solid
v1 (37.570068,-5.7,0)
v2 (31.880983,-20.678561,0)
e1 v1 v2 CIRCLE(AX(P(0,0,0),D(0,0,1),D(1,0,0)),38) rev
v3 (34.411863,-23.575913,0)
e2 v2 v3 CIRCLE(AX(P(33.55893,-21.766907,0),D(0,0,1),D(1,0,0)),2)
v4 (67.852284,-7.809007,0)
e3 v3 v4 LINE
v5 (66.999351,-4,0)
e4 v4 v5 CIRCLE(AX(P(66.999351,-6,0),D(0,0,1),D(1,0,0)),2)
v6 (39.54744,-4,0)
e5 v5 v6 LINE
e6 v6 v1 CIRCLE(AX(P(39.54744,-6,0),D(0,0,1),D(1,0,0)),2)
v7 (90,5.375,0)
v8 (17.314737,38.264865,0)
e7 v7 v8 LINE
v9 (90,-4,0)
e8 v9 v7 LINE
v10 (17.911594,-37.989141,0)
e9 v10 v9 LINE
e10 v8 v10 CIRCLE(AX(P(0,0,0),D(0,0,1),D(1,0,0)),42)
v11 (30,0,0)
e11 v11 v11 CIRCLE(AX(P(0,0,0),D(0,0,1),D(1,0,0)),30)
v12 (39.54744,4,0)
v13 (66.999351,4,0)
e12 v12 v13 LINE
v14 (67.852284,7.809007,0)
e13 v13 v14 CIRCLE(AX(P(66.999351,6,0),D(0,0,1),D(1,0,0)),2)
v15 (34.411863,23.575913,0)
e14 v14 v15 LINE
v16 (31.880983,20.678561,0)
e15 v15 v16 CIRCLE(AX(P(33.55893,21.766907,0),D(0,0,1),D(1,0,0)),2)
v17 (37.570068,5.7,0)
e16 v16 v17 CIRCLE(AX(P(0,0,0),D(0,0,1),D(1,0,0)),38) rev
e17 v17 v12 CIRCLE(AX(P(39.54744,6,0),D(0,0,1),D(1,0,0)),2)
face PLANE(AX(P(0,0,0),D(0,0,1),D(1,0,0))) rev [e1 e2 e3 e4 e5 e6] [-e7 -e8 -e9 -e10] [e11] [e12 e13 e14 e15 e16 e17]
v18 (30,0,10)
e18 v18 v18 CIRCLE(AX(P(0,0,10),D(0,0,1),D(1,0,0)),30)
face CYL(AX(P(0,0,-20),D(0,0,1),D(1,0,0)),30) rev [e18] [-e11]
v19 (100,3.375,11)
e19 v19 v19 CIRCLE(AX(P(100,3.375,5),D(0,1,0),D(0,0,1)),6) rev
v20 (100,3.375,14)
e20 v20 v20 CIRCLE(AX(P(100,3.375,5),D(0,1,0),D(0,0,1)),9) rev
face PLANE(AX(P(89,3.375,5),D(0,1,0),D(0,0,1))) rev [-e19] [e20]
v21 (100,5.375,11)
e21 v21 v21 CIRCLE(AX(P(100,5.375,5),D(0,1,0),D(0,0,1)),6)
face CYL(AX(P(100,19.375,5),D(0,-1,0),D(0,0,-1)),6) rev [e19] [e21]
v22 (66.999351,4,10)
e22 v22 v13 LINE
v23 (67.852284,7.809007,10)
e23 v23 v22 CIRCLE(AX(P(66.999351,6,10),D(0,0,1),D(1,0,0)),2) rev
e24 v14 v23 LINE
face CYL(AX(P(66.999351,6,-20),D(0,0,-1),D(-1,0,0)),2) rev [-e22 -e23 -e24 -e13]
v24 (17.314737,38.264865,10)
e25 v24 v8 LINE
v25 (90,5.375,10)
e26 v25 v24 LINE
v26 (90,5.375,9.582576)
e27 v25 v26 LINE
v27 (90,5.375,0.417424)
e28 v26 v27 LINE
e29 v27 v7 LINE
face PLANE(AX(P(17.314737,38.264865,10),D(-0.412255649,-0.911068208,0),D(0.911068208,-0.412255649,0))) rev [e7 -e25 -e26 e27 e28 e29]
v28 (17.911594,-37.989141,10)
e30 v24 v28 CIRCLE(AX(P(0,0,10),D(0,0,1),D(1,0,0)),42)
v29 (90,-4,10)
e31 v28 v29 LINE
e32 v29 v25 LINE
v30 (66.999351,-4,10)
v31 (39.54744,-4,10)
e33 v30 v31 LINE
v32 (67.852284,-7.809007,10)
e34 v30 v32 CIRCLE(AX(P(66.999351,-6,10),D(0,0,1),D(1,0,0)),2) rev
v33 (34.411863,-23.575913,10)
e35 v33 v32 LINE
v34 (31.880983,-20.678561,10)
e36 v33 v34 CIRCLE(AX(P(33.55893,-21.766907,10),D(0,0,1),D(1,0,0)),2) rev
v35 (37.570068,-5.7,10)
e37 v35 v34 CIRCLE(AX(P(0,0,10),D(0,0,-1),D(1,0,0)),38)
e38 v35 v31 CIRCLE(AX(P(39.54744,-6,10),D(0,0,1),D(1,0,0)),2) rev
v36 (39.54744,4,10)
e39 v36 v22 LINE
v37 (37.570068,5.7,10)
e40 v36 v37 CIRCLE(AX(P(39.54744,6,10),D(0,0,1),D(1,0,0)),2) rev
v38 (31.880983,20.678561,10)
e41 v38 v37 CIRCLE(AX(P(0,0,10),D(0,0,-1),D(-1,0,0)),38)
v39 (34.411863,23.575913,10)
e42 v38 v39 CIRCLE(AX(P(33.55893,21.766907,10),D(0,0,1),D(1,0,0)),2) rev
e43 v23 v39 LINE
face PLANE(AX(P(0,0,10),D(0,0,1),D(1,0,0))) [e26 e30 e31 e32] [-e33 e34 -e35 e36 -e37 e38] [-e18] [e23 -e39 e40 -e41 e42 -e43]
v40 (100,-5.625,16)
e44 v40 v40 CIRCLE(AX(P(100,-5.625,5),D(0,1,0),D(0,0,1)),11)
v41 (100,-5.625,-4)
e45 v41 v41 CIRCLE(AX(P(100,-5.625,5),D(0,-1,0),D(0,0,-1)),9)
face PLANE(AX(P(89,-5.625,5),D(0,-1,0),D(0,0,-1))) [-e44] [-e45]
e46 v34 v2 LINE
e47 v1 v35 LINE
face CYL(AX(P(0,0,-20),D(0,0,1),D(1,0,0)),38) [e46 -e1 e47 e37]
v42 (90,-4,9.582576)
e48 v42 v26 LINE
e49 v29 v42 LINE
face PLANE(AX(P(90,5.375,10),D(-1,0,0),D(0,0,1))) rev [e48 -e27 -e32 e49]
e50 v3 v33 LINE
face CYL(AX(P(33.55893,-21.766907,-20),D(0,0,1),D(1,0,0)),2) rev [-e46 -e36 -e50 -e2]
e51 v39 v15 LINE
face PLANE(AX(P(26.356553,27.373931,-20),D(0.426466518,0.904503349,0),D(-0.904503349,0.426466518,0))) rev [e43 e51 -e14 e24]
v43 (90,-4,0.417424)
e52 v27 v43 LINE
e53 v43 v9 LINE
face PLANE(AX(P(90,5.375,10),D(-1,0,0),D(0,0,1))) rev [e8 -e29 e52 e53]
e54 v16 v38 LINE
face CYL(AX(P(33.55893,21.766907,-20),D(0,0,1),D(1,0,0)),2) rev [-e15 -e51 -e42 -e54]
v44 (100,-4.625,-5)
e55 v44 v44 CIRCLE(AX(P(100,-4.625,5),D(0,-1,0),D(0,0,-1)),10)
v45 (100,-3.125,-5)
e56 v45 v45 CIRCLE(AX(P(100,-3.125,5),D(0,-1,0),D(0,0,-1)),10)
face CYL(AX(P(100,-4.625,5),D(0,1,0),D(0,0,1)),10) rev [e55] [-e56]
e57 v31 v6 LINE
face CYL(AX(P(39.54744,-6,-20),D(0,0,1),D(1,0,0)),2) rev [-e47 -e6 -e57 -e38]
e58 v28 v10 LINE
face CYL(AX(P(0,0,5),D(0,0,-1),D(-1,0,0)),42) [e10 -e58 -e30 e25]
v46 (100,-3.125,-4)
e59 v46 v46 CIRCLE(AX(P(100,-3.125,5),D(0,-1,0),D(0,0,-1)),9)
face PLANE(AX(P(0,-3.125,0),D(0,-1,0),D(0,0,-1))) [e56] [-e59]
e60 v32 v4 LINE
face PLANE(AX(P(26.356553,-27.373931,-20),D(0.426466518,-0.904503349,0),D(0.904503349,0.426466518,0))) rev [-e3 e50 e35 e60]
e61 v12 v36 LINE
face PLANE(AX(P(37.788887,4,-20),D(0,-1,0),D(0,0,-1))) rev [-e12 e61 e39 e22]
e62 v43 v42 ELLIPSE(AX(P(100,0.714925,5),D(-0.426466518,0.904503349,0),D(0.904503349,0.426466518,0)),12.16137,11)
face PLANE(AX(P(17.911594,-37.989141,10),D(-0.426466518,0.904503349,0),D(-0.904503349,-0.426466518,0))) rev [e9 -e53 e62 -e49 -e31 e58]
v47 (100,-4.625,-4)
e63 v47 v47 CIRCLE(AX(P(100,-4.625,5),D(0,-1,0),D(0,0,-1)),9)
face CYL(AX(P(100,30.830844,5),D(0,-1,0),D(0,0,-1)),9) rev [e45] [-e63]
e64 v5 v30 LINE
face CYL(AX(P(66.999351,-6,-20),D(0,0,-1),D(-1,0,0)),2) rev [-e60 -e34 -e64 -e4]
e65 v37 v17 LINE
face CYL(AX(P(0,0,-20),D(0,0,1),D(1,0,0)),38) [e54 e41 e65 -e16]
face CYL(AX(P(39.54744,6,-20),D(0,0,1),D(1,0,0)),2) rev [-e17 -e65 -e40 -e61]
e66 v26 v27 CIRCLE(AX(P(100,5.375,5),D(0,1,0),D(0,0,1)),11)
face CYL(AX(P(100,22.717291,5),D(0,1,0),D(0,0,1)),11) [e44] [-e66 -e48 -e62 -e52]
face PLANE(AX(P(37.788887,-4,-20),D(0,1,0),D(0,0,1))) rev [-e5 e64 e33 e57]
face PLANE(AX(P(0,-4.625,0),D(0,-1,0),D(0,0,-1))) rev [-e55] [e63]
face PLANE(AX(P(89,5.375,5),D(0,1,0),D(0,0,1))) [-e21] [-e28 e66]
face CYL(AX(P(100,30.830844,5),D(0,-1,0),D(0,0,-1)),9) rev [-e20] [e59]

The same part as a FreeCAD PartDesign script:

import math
import FreeCAD as App
import Part
import Sketcher
from FreeCAD import Vector


def edges_at(feature, points):
    """Names of the edges that pass closest to the given points."""
    edges = feature.Shape.Edges
    near = lambda p: min(range(len(edges)), key=lambda i: edges[i].distToShape(Part.Vertex(*p))[0])
    return sorted({f"Edge{near(p) + 1}" for p in points})

doc = App.newDocument("Part")
params = doc.addObject("Spreadsheet::Sheet", "Params")
for row, (alias, value) in enumerate([
    ("sketch1_diameter", "84 mm"),
    ("pad1_length", "5 mm"),
    ("sketch2_width", "11 mm"),
    ("revolution_angle", "360 deg"),
    ("sketch3_radius", "42 mm"),
    ("pad2_length", "10 mm"),
    ("sketch4_diameter", "12 mm"),
    ("pocket1_length", "25 mm"),
    ("sketch5_diameter", "18 mm"),
    ("pocket2_length", "9 mm"),
    ("sketch6_diameter", "20 mm"),
    ("pocket3_length", "1.5 mm"),
    ("sketch7_diameter", "60 mm"),
    ("sketch7_radius", "38 mm"),
    ("pocket4_length", "30 mm"),
    ("fillet_radius", "2 mm"),
], start=1):
    params.set(f"A{row}", alias)
    params.set(f"B{row}", "=" + value)
    params.setAlias(f"B{row}", alias)

body = doc.addObject("PartDesign::Body", "Body")

sketch1 = body.newObject("Sketcher::SketchObject", "Sketch")
sketch1.AttachmentSupport = (doc.getObject("XY_Plane"), [""])
sketch1.MapMode = "FlatFace"
sketch1.addGeometry(Part.Circle(Vector(0, 0, 0), Vector(0, 0, 1), 42), False)
sketch1.addConstraint([
    Sketcher.Constraint("Coincident", 0, 3, -1, 1),
    Sketcher.Constraint("Diameter", 0, 84.0),
])
sketch1.setExpression("Constraints[1]", "Params.sketch1_diameter")
pad1 = body.newObject("PartDesign::Pad", "Pad")
pad1.Profile = sketch1
pad1.setExpression("Length", "Params.pad1_length")
body2 = doc.addObject("PartDesign::Body", "Body001")

sketch2 = body2.newObject("Sketcher::SketchObject", "Sketch001")
sketch2.AttachmentSupport = (doc.getObject("XY_Plane001"), [""])
sketch2.MapMode = "FlatFace"
sketch2.AttachmentOffset = App.Placement(Vector(0, 0, 5), App.Rotation())
sketch2.addGeometry([
    Part.LineSegment(Vector(89, 5, 0), Vector(89, -6, 0)),
    Part.LineSegment(Vector(89, -6, 0), Vector(100, -6, 0)),
    Part.LineSegment(Vector(100, -6, 0), Vector(100, 5, 0)),
    Part.LineSegment(Vector(100, 5, 0), Vector(89, 5, 0)),
], False)
sketch2.addGeometry(Part.LineSegment(Vector(100, 5, 0), Vector(100, -6, 0)), True)
sketch2.addConstraint([
    Sketcher.Constraint("Coincident", 0, 2, 1, 1),
    Sketcher.Constraint("Coincident", 1, 2, 2, 1),
    Sketcher.Constraint("Coincident", 2, 2, 3, 1),
    Sketcher.Constraint("Coincident", 3, 2, 0, 1),
    Sketcher.Constraint("Vertical", 0),
    Sketcher.Constraint("Horizontal", 1),
    Sketcher.Constraint("Vertical", 2),
    Sketcher.Constraint("Horizontal", 3),
    Sketcher.Constraint("Vertical", 4),
    Sketcher.Constraint("Coincident", 4, 1, 2, 2),
    Sketcher.Constraint("Horizontal", 0, 2, 4, 2),
    Sketcher.Constraint("Equal", 3, 0),
    Sketcher.Constraint("DistanceX", 1, 1, 1, 2, 11.0),
    Sketcher.Constraint("DistanceX", -1, 1, 0, 2, 89.0),
    Sketcher.Constraint("DistanceY", 0, 2, -1, 1, 5.625),
])
sketch2.setExpression("Constraints[12]", "Params.sketch2_width")
revolution = body2.newObject("PartDesign::Revolution", "Revolution")
revolution.Profile = sketch2
revolution.ReferenceAxis = (sketch2, ["Axis0"])
revolution.setExpression("Angle", "Params.revolution_angle")
body.AllowCompound = True
doc.recompute()

boolean = body.newObject("PartDesign::Boolean", "Boolean")
boolean.Type = "Fuse"
boolean.addObjects([body2])

sketch3 = body.newObject("Sketcher::SketchObject", "Sketch002")
sketch3.AttachmentSupport = (doc.getObject("XY_Plane"), [""])
sketch3.MapMode = "FlatFace"
sketch3.AttachmentOffset = App.Placement(Vector(0, 0, 5), App.Rotation())
sketch3.addGeometry([
    Part.LineSegment(Vector(90, 5, 0), Vector(17, 38, 0)),
    Part.ArcOfCircle(Part.Circle(Vector(0, 0, 0), Vector(0, 0, 1), 42), math.radians(66), math.radians(295)),
    Part.LineSegment(Vector(18, -38, 0), Vector(90, -4, 0)),
    Part.LineSegment(Vector(90, -4, 0), Vector(90, 5, 0)),
], False)
sketch3.addConstraint([
    Sketcher.Constraint("Tangent", 0, 2, 1, 1),
    Sketcher.Constraint("Tangent", 1, 2, 2, 1),
    Sketcher.Constraint("Coincident", 2, 2, 3, 1),
    Sketcher.Constraint("Coincident", 3, 2, 0, 1),
    Sketcher.Constraint("Vertical", 3),
    Sketcher.Constraint("Coincident", 1, 3, -1, 1),
    Sketcher.Constraint("Radius", 1, 42.0),
    Sketcher.Constraint("DistanceX", -1, 1, 2, 2, 90.0),
    Sketcher.Constraint("DistanceY", 2, 2, -1, 1, 4.0),
    Sketcher.Constraint("DistanceY", 3, 1, 3, 2, 9.375),
])
sketch3.setExpression("Constraints[6]", "Params.sketch3_radius")
pad2 = body.newObject("PartDesign::Pad", "Pad001")
pad2.Profile = sketch3
pad2.setExpression("Length", "Params.pad2_length")
pad2.Midplane = True

sketch4 = body.newObject("Sketcher::SketchObject", "Sketch003")
sketch4.AttachmentSupport = (doc.getObject("XZ_Plane"), [""])
sketch4.MapMode = "FlatFace"
sketch4.AttachmentOffset = App.Placement(Vector(0, 0, 5.625), App.Rotation())
sketch4.addGeometry(Part.Circle(Vector(100, 5, 0), Vector(0, 0, 1), 6), False)
sketch4.addConstraint([
    Sketcher.Constraint("Diameter", 0, 12.0),
    Sketcher.Constraint("DistanceX", -1, 1, 0, 3, 100.0),
    Sketcher.Constraint("DistanceY", -1, 1, 0, 3, 5.0),
])
sketch4.setExpression("Constraints[0]", "Params.sketch4_diameter")
pocket1 = body.newObject("PartDesign::Pocket", "Pocket")
pocket1.Profile = sketch4
pocket1.setExpression("Length", "Params.pocket1_length")

sketch5 = body.newObject("Sketcher::SketchObject", "Sketch004")
sketch5.AttachmentSupport = (doc.getObject("XZ_Plane"), [""])
sketch5.MapMode = "FlatFace"
sketch5.AttachmentOffset = App.Placement(Vector(0, 0, 5.625), App.Rotation())
sketch5.addGeometry(Part.Circle(Vector(100, 5, 0), Vector(0, 0, 1), 9), False)
sketch5.addConstraint([
    Sketcher.Constraint("Diameter", 0, 18.0),
    Sketcher.Constraint("DistanceX", -1, 1, 0, 3, 100.0),
    Sketcher.Constraint("DistanceY", -1, 1, 0, 3, 5.0),
])
sketch5.setExpression("Constraints[0]", "Params.sketch5_diameter")
pocket2 = body.newObject("PartDesign::Pocket", "Pocket001")
pocket2.Profile = sketch5
pocket2.setExpression("Length", "Params.pocket2_length")

sketch6 = body.newObject("Sketcher::SketchObject", "Sketch005")
sketch6.AttachmentSupport = (doc.getObject("XZ_Plane"), [""])
sketch6.MapMode = "FlatFace"
sketch6.AttachmentOffset = App.Placement(Vector(0, 0, 4.625), App.Rotation())
sketch6.addGeometry(Part.Circle(Vector(100, 5, 0), Vector(0, 0, 1), 10), False)
sketch6.addConstraint([
    Sketcher.Constraint("Diameter", 0, 20.0),
    Sketcher.Constraint("DistanceX", -1, 1, 0, 3, 100.0),
    Sketcher.Constraint("DistanceY", -1, 1, 0, 3, 5.0),
])
sketch6.setExpression("Constraints[0]", "Params.sketch6_diameter")
pocket3 = body.newObject("PartDesign::Pocket", "Pocket002")
pocket3.Profile = sketch6
pocket3.setExpression("Length", "Params.pocket3_length")

sketch7 = body.newObject("Sketcher::SketchObject", "Sketch006")
sketch7.AttachmentSupport = (doc.getObject("XY_Plane"), [""])
sketch7.MapMode = "FlatFace"
sketch7.AttachmentOffset = App.Placement(Vector(0, 0, 10), App.Rotation())
sketch7.addGeometry([
    Part.Circle(Vector(0, 0, 0), Vector(0, 0, 1), 30),
    Part.LineSegment(Vector(26, -27, 0), Vector(76, -4, 0)),
    Part.LineSegment(Vector(76, -4, 0), Vector(38, -4, 0)),
    Part.ArcOfCircle(Part.Circle(Vector(0, 0, 0), Vector(0, 0, 1), 38), math.radians(-46), math.radians(-6)),
    Part.LineSegment(Vector(38, 4, 0), Vector(76, 4, 0)),
    Part.LineSegment(Vector(76, 4, 0), Vector(26, 27, 0)),
    Part.ArcOfCircle(Part.Circle(Vector(0, 0, 0), Vector(0, 0, 1), 38), math.radians(6), math.radians(46)),
], False)
sketch7.addConstraint([
    Sketcher.Constraint("Coincident", 1, 2, 2, 1),
    Sketcher.Constraint("Coincident", 2, 2, 3, 2),
    Sketcher.Constraint("Coincident", 3, 1, 1, 1),
    Sketcher.Constraint("Coincident", 4, 2, 5, 1),
    Sketcher.Constraint("Coincident", 5, 2, 6, 2),
    Sketcher.Constraint("Coincident", 6, 1, 4, 1),
    Sketcher.Constraint("Horizontal", 2),
    Sketcher.Constraint("Horizontal", 4),
    Sketcher.Constraint("Coincident", 0, 3, -1, 1),
    Sketcher.Constraint("Coincident", 3, 3, -1, 1),
    Sketcher.Constraint("Coincident", 6, 3, -1, 1),
    Sketcher.Constraint("Equal", 3, 6),
    Sketcher.Constraint("Symmetric", 1, 2, 4, 2, -1),
    Sketcher.Constraint("Vertical", 3, 1, 5, 2),
    Sketcher.Constraint("Diameter", 0, 60.0),
    Sketcher.Constraint("Radius", 3, 38.0),
    Sketcher.Constraint("DistanceY", 1, 2, -1, 1, 4.0),
    Sketcher.Constraint("DistanceX", -1, 1, 1, 2, 75.9309),
    Sketcher.Constraint("DistanceY", 3, 1, -1, 1, 27.373931),
])
sketch7.setExpression("Constraints[14]", "Params.sketch7_diameter")
sketch7.setExpression("Constraints[15]", "Params.sketch7_radius")
pocket4 = body.newObject("PartDesign::Pocket", "Pocket003")
pocket4.Profile = sketch7
pocket4.setExpression("Length", "Params.pocket4_length")
doc.recompute()

fillet = body.newObject("PartDesign::Fillet", "Fillet")
fillet.Base = (pocket4, edges_at(pocket4, [
    (37.789, 4, 5),
    (26.357, 27.374, 5),
    (75.931, 4, 5),
    (26.357, -27.374, 5),
    (37.789, -4, 5),
    (75.931, -4, 5),
]))
fillet.setExpression("Radius", "Params.fillet_radius")

doc.recompute()
